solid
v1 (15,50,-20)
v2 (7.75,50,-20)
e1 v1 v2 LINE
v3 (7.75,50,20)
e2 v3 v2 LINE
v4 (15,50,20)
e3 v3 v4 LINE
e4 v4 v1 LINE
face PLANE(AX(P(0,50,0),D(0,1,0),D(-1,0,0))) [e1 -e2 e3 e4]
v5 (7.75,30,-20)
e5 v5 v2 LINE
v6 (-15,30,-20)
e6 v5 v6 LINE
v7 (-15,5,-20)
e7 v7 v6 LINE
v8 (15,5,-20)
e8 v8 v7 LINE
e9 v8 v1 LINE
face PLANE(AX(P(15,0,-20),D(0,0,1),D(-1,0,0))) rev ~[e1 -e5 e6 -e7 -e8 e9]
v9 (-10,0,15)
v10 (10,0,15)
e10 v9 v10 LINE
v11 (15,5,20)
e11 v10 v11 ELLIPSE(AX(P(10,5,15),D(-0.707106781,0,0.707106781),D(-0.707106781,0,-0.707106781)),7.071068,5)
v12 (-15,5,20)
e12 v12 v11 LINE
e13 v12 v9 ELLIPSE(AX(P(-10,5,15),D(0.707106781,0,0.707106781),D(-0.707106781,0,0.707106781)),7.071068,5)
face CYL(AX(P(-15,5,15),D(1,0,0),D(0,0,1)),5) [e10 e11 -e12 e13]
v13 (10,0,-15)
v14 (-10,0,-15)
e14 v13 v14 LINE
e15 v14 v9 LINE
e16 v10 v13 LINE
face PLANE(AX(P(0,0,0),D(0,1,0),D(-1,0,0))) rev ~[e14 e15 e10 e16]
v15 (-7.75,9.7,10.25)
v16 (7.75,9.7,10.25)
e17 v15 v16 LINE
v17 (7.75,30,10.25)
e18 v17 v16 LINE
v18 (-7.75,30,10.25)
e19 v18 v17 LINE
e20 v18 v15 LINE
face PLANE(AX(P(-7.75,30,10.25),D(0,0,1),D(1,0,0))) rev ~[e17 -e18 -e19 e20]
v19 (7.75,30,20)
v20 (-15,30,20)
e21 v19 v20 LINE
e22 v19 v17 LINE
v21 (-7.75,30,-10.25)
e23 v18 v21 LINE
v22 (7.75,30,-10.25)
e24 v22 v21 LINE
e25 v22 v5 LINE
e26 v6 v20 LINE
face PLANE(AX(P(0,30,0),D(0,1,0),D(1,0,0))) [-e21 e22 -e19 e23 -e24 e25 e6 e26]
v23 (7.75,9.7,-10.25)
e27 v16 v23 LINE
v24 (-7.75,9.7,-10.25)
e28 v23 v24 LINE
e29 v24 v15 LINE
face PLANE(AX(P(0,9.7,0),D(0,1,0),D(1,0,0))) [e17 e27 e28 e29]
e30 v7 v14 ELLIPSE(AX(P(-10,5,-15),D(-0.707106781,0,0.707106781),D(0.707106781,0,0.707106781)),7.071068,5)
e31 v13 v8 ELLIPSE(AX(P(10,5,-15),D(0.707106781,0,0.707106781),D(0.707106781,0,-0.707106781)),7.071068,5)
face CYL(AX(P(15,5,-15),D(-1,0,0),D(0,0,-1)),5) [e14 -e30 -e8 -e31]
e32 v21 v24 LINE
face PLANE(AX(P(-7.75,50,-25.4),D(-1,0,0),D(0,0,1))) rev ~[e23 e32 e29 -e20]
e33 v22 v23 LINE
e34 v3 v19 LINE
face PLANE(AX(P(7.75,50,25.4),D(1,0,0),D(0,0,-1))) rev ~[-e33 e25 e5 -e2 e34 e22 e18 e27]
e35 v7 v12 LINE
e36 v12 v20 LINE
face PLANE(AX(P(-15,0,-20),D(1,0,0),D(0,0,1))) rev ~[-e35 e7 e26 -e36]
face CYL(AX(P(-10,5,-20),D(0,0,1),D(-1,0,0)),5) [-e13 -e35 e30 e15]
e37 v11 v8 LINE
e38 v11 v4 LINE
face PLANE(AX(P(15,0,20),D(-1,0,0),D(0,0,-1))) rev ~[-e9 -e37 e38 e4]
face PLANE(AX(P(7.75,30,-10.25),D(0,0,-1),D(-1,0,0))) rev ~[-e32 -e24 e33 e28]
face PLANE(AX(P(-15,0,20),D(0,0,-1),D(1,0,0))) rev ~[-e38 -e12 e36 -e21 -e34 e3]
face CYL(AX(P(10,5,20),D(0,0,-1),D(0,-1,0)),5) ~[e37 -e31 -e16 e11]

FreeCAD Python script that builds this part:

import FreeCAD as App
import Part
import Sketcher
Q = App.Units.Quantity


def edges_at(feature, points):
    """Names of the edges that pass closest to the given points."""
    edges = feature.Shape.Edges
    near = lambda p: min(range(len(edges)), key=lambda i: edges[i].distToShape(Part.Vertex(*p))[0])
    return sorted({f"Edge{near(p) + 1}" for p in points})


def add_polygon(sketch, points):
    """Adds a closed chain of lines whose ends are joined by coincident constraints."""
    first, n = sketch.GeometryCount, len(points)
    for a, b in zip(points, points[1:] + points[:1]):
        sketch.addGeometry(Part.LineSegment(App.Vector(*a, 0), App.Vector(*b, 0)), False)
    for i in range(n):
        sketch.addConstraint(Sketcher.Constraint("Coincident", first + i, 2, first + (i + 1) % n, 1))

doc = App.newDocument("Part")
body = doc.addObject("PartDesign::Body", "Body")

sketch1 = body.newObject("Sketcher::SketchObject", "Sketch")
sketch1.AttachmentSupport = (doc.getObject("XZ_Plane"), [""])
sketch1.MapMode = "FlatFace"
add_polygon(sketch1, [(-15, -20), (-15, 20), (15, 20), (15, -20)])
sketch1.addConstraint(Sketcher.Constraint("Vertical", 0))
sketch1.addConstraint(Sketcher.Constraint("Horizontal", 1))
sketch1.addConstraint(Sketcher.Constraint("Vertical", 2))
sketch1.addConstraint(Sketcher.Constraint("Horizontal", 3))
sketch1.addConstraint(Sketcher.Constraint("Symmetric", 0, 2, 2, 2, -1, 1))
sketch1.addConstraint(Sketcher.Constraint("DistanceX", 1, 1, 1, 2, Q("30 mm")))
sketch1.addConstraint(Sketcher.Constraint("DistanceY", 0, 1, 0, 2, Q("40 mm")))
pad1 = body.newObject("PartDesign::Pad", "Pad")
pad1.Profile = sketch1
pad1.Length = 50
pad1.Reversed = True

sketch2 = body.newObject("Sketcher::SketchObject", "Sketch001")
sketch2.AttachmentSupport = (doc.getObject("XZ_Plane"), [""])
sketch2.MapMode = "FlatFace"
sketch2.AttachmentOffset = App.Placement(App.Vector(0, 0, -50), App.Rotation())
add_polygon(sketch2, [(-8, -25), (-8, 25), (8, 25), (8, -25)])
sketch2.addConstraint(Sketcher.Constraint("Vertical", 0))
sketch2.addConstraint(Sketcher.Constraint("Horizontal", 1))
sketch2.addConstraint(Sketcher.Constraint("Vertical", 2))
sketch2.addConstraint(Sketcher.Constraint("Horizontal", 3))
sketch2.addConstraint(Sketcher.Constraint("Symmetric", 0, 2, 2, 2, -1, 1))
sketch2.addConstraint(Sketcher.Constraint("DistanceX", 1, 1, 1, 2, Q("15.5 mm")))
sketch2.addConstraint(Sketcher.Constraint("DistanceY", 0, 1, 0, 2, Q("50.8 mm")))
pocket1 = body.newObject("PartDesign::Pocket", "Pocket")
pocket1.Profile = sketch2
pocket1.Length = 20
pocket1.Reversed = True

sketch3 = body.newObject("Sketcher::SketchObject", "Sketch002")
sketch3.AttachmentSupport = (doc.getObject("XZ_Plane"), [""])
sketch3.MapMode = "FlatFace"
sketch3.AttachmentOffset = App.Placement(App.Vector(0, 0, -30), App.Rotation())
add_polygon(sketch3, [(-8, -10), (-8, 10), (8, 10), (8, -10)])
sketch3.addConstraint(Sketcher.Constraint("Vertical", 0))
sketch3.addConstraint(Sketcher.Constraint("Horizontal", 1))
sketch3.addConstraint(Sketcher.Constraint("Vertical", 2))
sketch3.addConstraint(Sketcher.Constraint("Horizontal", 3))
sketch3.addConstraint(Sketcher.Constraint("Symmetric", 0, 2, 2, 2, -1, 1))
sketch3.addConstraint(Sketcher.Constraint("DistanceX", 1, 1, 1, 2, Q("15.5 mm")))
sketch3.addConstraint(Sketcher.Constraint("DistanceY", 0, 1, 0, 2, Q("20.5 mm")))
pocket2 = body.newObject("PartDesign::Pocket", "Pocket001")
pocket2.Profile = sketch3
pocket2.Length = 20.3
pocket2.Reversed = True
doc.recompute()

fillet = body.newObject("PartDesign::Fillet", "Fillet")
fillet.Base = (pocket2, edges_at(pocket2, [
    (15, 0, 0),
    (-15, 0, 0),
    (0, 0, 20),
    (0, 0, -20),
]))
fillet.Radius = 5

sketch4 = body.newObject("Sketcher::SketchObject", "Sketch003")
sketch4.AttachmentSupport = (doc.getObject("XZ_Plane"), [""])
sketch4.MapMode = "FlatFace"
sketch4.AttachmentOffset = App.Placement(App.Vector(0, 0, -50), App.Rotation())
add_polygon(sketch4, [(-15, 20), (-8, 20), (-8, -20), (-15, -20)])
sketch4.addConstraint(Sketcher.Constraint("Horizontal", 0))
sketch4.addConstraint(Sketcher.Constraint("Vertical", 1))
sketch4.addConstraint(Sketcher.Constraint("Horizontal", 2))
sketch4.addConstraint(Sketcher.Constraint("Vertical", 3))
sketch4.addConstraint(Sketcher.Constraint("DistanceY", 1, 2, 1, 1, Q("40 mm")))
sketch4.addConstraint(Sketcher.Constraint("DistanceY", -1, 1, 0, 2, Q("20 mm")))
sketch4.addConstraint(Sketcher.Constraint("DistanceX", 2, 2, -1, 1, Q("15 mm")))
sketch4.addConstraint(Sketcher.Constraint("DistanceX", 0, 1, 0, 2, Q("7.25 mm")))
pocket3 = body.newObject("PartDesign::Pocket", "Pocket002")
pocket3.Profile = sketch4
pocket3.Length = 20
pocket3.Reversed = True

doc.recompute()
